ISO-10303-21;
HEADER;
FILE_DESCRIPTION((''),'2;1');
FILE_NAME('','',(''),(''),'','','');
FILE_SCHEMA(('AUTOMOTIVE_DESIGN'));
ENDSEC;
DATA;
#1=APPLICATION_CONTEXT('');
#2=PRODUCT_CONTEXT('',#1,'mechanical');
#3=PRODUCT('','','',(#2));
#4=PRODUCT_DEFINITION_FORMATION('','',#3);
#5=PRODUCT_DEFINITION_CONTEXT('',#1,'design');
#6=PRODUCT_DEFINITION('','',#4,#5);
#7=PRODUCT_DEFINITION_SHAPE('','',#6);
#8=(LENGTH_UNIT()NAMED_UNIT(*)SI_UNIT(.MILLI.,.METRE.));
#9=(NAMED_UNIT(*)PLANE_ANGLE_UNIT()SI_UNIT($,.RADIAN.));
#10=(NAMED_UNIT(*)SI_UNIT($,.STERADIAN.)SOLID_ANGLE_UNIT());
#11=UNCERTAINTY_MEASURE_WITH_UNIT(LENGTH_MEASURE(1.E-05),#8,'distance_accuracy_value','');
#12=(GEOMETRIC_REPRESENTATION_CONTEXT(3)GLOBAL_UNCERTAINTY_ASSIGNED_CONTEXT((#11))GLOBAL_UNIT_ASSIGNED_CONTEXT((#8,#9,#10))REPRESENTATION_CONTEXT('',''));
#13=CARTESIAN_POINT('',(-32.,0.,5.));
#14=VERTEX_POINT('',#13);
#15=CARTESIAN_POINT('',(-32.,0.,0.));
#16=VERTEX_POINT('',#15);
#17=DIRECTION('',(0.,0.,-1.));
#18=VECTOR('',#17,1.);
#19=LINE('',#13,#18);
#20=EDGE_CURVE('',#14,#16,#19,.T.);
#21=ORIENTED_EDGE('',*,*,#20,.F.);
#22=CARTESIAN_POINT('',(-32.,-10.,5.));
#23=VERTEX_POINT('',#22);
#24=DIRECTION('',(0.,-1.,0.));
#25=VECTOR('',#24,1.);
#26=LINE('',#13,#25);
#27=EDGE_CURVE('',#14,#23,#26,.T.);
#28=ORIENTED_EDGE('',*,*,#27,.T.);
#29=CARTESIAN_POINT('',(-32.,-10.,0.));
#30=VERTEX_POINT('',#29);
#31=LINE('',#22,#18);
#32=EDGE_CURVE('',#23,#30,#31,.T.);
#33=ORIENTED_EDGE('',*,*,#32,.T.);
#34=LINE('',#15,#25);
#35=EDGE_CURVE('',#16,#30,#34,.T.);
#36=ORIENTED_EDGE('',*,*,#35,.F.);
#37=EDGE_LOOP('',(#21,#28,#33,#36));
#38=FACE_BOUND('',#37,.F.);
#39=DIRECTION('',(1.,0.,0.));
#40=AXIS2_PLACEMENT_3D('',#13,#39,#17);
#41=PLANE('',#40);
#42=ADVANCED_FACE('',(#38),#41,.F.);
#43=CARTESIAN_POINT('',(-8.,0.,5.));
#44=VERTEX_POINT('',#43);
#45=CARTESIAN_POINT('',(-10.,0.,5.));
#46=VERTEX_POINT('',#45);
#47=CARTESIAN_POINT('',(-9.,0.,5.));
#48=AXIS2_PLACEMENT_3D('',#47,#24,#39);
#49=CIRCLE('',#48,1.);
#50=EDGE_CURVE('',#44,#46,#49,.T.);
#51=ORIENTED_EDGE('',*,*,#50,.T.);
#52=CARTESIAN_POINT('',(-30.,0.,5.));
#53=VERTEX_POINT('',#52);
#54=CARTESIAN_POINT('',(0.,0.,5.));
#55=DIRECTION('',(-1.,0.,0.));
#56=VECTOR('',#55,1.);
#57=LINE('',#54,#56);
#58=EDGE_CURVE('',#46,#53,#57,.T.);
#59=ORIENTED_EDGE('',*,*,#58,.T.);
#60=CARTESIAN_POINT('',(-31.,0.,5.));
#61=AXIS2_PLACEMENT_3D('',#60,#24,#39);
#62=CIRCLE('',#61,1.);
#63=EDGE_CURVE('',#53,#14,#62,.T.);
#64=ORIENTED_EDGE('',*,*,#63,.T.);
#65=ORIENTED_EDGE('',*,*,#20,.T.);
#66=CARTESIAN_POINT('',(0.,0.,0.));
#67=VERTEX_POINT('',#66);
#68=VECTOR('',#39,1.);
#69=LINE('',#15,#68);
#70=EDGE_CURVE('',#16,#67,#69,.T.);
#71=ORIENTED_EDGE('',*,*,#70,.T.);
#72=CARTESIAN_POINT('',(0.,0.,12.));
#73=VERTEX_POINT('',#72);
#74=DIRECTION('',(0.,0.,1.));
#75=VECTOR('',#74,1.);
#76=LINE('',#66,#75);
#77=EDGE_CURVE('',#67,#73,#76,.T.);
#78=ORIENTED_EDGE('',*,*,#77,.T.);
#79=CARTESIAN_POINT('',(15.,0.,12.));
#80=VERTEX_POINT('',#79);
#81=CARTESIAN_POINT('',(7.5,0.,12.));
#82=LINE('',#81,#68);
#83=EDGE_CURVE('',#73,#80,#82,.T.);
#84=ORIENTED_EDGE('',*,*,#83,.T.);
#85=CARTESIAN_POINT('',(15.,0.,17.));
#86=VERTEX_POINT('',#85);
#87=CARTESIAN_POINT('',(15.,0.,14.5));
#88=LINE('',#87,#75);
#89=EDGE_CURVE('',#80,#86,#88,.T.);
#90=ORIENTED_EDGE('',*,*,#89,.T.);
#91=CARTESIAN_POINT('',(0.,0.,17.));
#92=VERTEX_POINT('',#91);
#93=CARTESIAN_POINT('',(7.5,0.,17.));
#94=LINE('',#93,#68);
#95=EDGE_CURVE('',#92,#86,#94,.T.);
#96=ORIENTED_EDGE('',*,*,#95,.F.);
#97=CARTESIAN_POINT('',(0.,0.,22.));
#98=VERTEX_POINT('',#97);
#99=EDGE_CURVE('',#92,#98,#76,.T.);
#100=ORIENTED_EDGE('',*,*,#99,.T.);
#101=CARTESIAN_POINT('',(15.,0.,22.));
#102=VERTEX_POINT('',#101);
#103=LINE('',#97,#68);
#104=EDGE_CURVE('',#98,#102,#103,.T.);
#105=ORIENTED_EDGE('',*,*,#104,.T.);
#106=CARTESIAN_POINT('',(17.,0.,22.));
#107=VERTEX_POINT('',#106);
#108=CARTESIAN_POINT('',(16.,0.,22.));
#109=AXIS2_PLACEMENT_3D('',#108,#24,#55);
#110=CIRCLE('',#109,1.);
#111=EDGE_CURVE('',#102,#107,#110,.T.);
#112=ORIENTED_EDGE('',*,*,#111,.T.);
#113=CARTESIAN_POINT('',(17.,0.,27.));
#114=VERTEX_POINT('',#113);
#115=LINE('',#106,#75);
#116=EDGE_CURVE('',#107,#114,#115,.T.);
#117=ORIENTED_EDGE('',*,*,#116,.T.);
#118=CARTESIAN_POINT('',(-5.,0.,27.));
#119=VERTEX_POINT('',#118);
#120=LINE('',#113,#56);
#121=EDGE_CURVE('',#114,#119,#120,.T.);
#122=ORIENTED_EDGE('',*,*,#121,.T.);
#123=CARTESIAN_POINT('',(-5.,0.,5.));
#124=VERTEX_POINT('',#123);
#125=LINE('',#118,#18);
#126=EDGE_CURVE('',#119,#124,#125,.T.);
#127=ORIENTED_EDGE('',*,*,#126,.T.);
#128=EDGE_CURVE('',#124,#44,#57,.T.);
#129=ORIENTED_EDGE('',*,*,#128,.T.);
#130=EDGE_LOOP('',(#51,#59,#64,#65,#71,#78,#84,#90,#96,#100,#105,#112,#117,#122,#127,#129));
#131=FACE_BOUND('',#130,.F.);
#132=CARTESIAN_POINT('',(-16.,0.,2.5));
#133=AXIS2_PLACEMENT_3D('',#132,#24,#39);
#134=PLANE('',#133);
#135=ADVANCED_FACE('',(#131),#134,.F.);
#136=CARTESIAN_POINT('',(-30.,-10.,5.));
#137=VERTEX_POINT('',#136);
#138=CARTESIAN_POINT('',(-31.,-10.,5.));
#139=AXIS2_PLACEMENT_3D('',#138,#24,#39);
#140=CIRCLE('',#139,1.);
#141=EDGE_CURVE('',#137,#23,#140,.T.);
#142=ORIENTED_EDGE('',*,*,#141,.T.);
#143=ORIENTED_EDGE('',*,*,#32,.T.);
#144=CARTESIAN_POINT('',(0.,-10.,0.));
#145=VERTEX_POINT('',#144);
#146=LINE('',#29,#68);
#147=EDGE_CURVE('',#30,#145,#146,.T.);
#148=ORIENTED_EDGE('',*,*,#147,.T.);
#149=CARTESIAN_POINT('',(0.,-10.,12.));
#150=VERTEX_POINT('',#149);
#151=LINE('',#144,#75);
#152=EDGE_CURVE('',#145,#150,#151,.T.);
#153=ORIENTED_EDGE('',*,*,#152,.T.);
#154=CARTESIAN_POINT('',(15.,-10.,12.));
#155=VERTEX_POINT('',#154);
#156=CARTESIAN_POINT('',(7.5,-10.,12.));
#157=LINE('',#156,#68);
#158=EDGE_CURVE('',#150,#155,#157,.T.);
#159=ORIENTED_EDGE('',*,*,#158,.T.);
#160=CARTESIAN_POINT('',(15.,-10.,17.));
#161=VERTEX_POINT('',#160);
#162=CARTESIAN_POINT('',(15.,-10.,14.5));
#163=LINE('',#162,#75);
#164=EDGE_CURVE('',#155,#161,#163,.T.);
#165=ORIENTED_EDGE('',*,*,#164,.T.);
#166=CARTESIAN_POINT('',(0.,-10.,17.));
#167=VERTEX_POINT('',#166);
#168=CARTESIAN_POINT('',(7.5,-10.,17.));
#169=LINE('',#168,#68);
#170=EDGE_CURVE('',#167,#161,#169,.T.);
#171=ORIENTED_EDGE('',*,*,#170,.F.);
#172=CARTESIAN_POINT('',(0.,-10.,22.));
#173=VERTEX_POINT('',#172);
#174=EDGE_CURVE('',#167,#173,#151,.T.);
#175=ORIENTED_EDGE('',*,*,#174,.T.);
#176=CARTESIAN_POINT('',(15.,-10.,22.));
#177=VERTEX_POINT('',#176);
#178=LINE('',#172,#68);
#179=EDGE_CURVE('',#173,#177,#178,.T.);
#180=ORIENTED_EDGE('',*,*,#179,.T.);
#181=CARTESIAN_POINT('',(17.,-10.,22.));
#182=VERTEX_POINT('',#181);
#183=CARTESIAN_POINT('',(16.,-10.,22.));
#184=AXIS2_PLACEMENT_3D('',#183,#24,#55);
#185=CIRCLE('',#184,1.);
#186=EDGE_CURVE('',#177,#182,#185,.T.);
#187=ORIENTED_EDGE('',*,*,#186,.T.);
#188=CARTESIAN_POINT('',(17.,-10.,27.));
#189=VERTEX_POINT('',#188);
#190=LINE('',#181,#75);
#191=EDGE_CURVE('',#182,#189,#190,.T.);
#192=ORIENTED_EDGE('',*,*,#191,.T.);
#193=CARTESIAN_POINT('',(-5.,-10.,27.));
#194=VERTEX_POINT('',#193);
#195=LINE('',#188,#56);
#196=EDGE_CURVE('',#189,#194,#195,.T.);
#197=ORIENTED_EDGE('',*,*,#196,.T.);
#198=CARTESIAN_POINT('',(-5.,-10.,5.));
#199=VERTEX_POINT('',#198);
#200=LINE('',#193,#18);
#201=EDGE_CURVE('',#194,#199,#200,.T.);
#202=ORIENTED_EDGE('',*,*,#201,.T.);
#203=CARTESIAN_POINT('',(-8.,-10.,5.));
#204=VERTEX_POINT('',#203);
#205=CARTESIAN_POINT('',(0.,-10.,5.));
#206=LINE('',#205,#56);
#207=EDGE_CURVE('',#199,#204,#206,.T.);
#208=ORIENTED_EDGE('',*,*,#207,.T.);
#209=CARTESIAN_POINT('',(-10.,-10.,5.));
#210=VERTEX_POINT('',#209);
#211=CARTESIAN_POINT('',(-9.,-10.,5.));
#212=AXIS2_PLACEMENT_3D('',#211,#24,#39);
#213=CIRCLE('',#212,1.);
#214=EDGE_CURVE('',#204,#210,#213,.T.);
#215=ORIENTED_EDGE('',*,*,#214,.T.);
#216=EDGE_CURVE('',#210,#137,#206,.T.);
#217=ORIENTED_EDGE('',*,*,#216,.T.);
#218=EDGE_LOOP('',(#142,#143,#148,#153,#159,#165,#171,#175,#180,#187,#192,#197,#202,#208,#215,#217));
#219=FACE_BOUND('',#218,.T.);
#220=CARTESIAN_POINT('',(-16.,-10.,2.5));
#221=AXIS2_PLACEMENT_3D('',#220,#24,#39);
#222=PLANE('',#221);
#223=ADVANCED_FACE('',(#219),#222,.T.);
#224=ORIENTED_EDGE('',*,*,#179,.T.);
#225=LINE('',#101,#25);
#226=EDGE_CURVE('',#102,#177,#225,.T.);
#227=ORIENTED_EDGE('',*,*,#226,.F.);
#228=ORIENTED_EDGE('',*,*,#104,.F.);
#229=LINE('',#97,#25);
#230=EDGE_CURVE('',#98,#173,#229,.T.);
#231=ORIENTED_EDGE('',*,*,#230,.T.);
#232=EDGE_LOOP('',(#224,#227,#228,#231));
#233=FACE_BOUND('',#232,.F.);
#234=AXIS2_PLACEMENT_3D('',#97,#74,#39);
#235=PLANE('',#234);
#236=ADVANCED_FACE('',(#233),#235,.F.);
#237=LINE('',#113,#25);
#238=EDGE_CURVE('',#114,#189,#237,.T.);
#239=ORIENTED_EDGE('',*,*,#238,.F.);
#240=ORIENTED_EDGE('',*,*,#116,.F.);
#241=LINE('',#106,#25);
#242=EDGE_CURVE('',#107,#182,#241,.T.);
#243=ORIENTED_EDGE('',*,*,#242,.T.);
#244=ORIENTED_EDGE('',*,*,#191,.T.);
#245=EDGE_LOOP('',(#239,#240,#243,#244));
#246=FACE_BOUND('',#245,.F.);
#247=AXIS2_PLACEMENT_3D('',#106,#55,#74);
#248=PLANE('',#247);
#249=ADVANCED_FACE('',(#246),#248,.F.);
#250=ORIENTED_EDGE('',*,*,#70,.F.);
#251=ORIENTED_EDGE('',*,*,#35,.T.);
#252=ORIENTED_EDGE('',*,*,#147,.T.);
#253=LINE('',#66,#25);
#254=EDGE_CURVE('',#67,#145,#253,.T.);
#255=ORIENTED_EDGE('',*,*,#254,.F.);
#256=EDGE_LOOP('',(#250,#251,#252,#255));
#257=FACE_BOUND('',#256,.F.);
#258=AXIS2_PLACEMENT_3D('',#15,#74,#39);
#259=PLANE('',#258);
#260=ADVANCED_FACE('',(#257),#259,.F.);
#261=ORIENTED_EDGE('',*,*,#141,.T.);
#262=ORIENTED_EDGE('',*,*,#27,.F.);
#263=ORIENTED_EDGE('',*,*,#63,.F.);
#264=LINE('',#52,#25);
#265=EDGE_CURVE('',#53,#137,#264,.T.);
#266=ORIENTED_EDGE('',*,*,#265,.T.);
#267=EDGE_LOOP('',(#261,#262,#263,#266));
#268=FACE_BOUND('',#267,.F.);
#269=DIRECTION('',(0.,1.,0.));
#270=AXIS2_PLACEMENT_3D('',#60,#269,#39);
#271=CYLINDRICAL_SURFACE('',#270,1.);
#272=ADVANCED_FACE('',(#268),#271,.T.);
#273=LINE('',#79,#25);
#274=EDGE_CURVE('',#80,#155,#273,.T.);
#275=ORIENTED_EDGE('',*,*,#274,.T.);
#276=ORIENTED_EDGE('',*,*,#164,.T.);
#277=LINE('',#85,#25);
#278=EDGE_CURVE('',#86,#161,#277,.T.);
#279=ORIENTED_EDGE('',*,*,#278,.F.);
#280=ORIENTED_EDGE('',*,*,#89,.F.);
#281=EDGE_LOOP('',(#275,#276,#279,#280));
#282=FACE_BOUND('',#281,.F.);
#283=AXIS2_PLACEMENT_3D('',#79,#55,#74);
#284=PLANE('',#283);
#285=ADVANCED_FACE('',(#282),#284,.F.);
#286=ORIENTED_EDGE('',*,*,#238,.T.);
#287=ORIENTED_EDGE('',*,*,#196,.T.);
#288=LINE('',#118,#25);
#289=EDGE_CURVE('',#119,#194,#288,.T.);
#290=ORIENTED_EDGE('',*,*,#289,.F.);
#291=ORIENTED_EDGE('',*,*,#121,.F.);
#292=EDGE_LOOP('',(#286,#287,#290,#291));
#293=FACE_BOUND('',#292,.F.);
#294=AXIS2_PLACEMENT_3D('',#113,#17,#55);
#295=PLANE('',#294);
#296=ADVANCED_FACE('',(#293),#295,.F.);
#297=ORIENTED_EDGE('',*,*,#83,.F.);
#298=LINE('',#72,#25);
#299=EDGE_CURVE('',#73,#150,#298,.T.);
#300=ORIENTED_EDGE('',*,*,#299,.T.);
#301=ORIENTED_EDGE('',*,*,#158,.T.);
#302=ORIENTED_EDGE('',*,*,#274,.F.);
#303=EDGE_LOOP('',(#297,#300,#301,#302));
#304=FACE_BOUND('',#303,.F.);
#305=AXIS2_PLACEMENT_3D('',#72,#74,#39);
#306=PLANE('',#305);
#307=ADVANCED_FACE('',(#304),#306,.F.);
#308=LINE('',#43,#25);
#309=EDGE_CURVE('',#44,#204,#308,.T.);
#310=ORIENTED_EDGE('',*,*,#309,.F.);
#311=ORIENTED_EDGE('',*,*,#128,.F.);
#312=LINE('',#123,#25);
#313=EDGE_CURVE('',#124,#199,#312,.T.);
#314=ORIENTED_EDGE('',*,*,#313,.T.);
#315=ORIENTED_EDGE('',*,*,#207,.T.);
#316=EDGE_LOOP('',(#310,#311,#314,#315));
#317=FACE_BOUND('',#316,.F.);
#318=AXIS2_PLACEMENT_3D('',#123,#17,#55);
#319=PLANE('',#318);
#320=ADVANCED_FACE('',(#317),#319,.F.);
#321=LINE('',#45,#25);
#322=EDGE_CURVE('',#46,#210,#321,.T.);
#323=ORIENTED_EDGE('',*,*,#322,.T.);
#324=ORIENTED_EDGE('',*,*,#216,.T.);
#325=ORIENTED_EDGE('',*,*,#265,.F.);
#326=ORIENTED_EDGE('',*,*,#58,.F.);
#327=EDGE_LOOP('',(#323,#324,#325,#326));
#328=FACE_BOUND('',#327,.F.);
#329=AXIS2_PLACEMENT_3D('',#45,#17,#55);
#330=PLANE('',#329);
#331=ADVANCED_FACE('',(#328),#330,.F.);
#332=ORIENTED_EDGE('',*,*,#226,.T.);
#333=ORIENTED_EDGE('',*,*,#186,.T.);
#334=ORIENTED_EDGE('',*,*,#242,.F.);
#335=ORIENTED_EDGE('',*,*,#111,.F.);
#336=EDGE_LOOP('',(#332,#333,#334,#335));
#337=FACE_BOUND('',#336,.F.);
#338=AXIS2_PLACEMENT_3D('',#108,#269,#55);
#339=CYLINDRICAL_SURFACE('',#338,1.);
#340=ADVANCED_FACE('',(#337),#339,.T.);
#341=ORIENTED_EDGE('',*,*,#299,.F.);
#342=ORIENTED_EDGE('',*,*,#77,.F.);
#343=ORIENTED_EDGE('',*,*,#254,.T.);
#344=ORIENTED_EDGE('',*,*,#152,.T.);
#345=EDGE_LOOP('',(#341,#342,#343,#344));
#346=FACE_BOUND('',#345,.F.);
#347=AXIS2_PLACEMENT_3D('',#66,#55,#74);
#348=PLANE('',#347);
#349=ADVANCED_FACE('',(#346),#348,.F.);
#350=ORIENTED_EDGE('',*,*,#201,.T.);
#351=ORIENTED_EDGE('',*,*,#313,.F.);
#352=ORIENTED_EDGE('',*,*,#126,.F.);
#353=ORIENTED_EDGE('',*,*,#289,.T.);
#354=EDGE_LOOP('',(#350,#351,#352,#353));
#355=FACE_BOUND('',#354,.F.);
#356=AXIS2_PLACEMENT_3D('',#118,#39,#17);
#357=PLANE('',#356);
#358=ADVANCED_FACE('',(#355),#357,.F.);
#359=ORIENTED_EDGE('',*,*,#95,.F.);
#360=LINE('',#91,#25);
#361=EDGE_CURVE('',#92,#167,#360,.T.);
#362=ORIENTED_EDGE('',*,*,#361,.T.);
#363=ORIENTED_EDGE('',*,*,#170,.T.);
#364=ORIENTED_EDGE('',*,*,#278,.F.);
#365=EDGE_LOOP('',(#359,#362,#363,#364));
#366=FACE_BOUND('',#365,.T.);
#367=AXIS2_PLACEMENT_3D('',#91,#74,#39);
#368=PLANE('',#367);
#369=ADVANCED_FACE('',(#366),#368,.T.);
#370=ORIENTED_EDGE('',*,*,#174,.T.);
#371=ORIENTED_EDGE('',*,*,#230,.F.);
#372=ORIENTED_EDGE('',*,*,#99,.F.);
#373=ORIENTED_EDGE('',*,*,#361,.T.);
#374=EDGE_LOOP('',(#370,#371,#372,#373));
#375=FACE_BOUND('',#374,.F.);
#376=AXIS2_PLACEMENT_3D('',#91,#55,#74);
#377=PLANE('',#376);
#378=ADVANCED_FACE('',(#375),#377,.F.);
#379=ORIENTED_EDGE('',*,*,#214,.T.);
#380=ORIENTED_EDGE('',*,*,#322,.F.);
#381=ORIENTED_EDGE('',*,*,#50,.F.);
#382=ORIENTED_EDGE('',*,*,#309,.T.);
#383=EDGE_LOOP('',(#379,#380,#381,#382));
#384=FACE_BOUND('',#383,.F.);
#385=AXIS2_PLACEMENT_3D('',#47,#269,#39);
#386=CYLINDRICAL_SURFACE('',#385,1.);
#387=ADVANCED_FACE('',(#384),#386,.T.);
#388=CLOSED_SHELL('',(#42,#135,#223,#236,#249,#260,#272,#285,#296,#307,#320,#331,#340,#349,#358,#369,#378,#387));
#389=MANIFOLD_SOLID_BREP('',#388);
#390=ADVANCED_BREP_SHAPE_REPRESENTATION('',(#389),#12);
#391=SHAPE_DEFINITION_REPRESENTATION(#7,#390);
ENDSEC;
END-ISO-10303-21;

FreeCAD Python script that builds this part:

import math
import FreeCAD as App
import Part
import Sketcher
from FreeCAD import Vector

doc = App.newDocument("Part")
body = doc.addObject("PartDesign::Body", "Body")

sketch1 = body.newObject("Sketcher::SketchObject", "Sketch")
sketch1.AttachmentSupport = (doc.getObject("XZ_Plane"), [""])
sketch1.MapMode = "FlatFace"
sketch1.addGeometry(Part.LineSegment(Vector(-32, 0, 0), Vector(0, 0, 0)), False)
sketch1.addGeometry(Part.LineSegment(Vector(0, 0, 0), Vector(0, 12, 0)), False)
sketch1.addGeometry(Part.LineSegment(Vector(0, 12, 0), Vector(15, 12, 0)), False)
sketch1.addGeometry(Part.LineSegment(Vector(15, 12, 0), Vector(15, 17, 0)), False)
sketch1.addGeometry(Part.LineSegment(Vector(15, 17, 0), Vector(0, 17, 0)), False)
sketch1.addGeometry(Part.LineSegment(Vector(0, 17, 0), Vector(0, 22, 0)), False)
sketch1.addGeometry(Part.LineSegment(Vector(0, 22, 0), Vector(15, 22, 0)), False)
sketch1.addGeometry(Part.ArcOfCircle(Part.Circle(Vector(16, 22, 0), Vector(0, 0, 1), 1), math.radians(180), math.radians(360)), False)
sketch1.addGeometry(Part.LineSegment(Vector(17, 22, 0), Vector(17, 27, 0)), False)
sketch1.addGeometry(Part.LineSegment(Vector(17, 27, 0), Vector(-5, 27, 0)), False)
sketch1.addGeometry(Part.LineSegment(Vector(-5, 27, 0), Vector(-5, 5, 0)), False)
sketch1.addGeometry(Part.LineSegment(Vector(-5, 5, 0), Vector(-8, 5, 0)), False)
sketch1.addGeometry(Part.ArcOfCircle(Part.Circle(Vector(-9, 5, 0), Vector(0, 0, 1), 1), math.radians(0), math.radians(180)), False)
sketch1.addGeometry(Part.LineSegment(Vector(-10, 5, 0), Vector(-30, 5, 0)), False)
sketch1.addGeometry(Part.ArcOfCircle(Part.Circle(Vector(-31, 5, 0), Vector(0, 0, 1), 1), math.radians(0), math.radians(180)), False)
sketch1.addGeometry(Part.LineSegment(Vector(-32, 5, 0), Vector(-32, 0, 0)), False)
sketch1.addConstraint(Sketcher.Constraint("Coincident", 0, 2, 1, 1))
sketch1.addConstraint(Sketcher.Constraint("Coincident", 1, 2, 2, 1))
sketch1.addConstraint(Sketcher.Constraint("Coincident", 2, 2, 3, 1))
sketch1.addConstraint(Sketcher.Constraint("Coincident", 3, 2, 4, 1))
sketch1.addConstraint(Sketcher.Constraint("Coincident", 4, 2, 5, 1))
sketch1.addConstraint(Sketcher.Constraint("Coincident", 5, 2, 6, 1))
sketch1.addConstraint(Sketcher.Constraint("Coincident", 6, 2, 7, 1))
sketch1.addConstraint(Sketcher.Constraint("Tangent", 7, 2, 8, 1))
sketch1.addConstraint(Sketcher.Constraint("Coincident", 8, 2, 9, 1))
sketch1.addConstraint(Sketcher.Constraint("Coincident", 9, 2, 10, 1))
sketch1.addConstraint(Sketcher.Constraint("Coincident", 10, 2, 11, 1))
sketch1.addConstraint(Sketcher.Constraint("Coincident", 11, 2, 12, 1))
sketch1.addConstraint(Sketcher.Constraint("Coincident", 12, 2, 13, 1))
sketch1.addConstraint(Sketcher.Constraint("Coincident", 13, 2, 14, 1))
sketch1.addConstraint(Sketcher.Constraint("Tangent", 14, 2, 15, 1))
sketch1.addConstraint(Sketcher.Constraint("Coincident", 15, 2, 0, 1))
sketch1.addConstraint(Sketcher.Constraint("Horizontal", 0))
sketch1.addConstraint(Sketcher.Constraint("Vertical", 1))
sketch1.addConstraint(Sketcher.Constraint("Horizontal", 2))
sketch1.addConstraint(Sketcher.Constraint("Vertical", 3))
sketch1.addConstraint(Sketcher.Constraint("Horizontal", 4))
sketch1.addConstraint(Sketcher.Constraint("Vertical", 5))
sketch1.addConstraint(Sketcher.Constraint("Horizontal", 6))
sketch1.addConstraint(Sketcher.Constraint("Vertical", 8))
sketch1.addConstraint(Sketcher.Constraint("Horizontal", 9))
sketch1.addConstraint(Sketcher.Constraint("Vertical", 10))
sketch1.addConstraint(Sketcher.Constraint("Horizontal", 11))
sketch1.addConstraint(Sketcher.Constraint("Horizontal", 13))
sketch1.addConstraint(Sketcher.Constraint("Vertical", 15))
sketch1.addConstraint(Sketcher.Constraint("Coincident", 0, 2, -1, 1))
sketch1.addConstraint(Sketcher.Constraint("Equal", 7, 12))
sketch1.addConstraint(Sketcher.Constraint("Equal", 12, 14))
sketch1.addConstraint(Sketcher.Constraint("PointOnObject", 4, 2, -2))
sketch1.addConstraint(Sketcher.Constraint("Horizontal", 12, 3, 14, 3))
sketch1.addConstraint(Sketcher.Constraint("Horizontal", 7, 3, 5, 2))
sketch1.addConstraint(Sketcher.Constraint("Horizontal", 14, 3, 10, 2))
sketch1.addConstraint(Sketcher.Constraint("Horizontal", 11, 2, 12, 2))
sketch1.addConstraint(Sketcher.Constraint("Vertical", 3, 2, 6, 2))
sketch1.addConstraint(Sketcher.Constraint("Equal", 3, 5))
sketch1.addConstraint(Sketcher.Constraint("Equal", 5, 8))
sketch1.addConstraint(Sketcher.Constraint("Equal", 9, 10))
sketch1.addConstraint(Sketcher.Constraint("Equal", 8, 15))
sketch1.addConstraint(Sketcher.Constraint("Radius", 7, 1.0))
sketch1.addConstraint(Sketcher.Constraint("DistanceX", 0, 1, 0, 2, 32.0))
sketch1.addConstraint(Sketcher.Constraint("DistanceX", 2, 1, 2, 2, 15.0))
sketch1.addConstraint(Sketcher.Constraint("DistanceX", 9, 2, 9, 1, 22.0))
sketch1.addConstraint(Sketcher.Constraint("DistanceX", 11, 2, 11, 1, 3.0))
sketch1.addConstraint(Sketcher.Constraint("DistanceY", 1, 1, 1, 2, 12.0))
pad1 = body.newObject("PartDesign::Pad", "Pad")
pad1.Profile = sketch1
pad1.Length = 10

doc.recompute()
